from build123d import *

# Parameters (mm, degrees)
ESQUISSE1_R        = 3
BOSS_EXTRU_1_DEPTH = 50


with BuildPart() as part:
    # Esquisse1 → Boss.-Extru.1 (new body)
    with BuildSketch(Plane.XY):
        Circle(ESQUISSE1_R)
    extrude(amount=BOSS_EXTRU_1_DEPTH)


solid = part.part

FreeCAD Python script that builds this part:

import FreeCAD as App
import Part
import Sketcher
from FreeCAD import Vector
Q = App.Units.Quantity

doc = App.newDocument("Part")
body = doc.addObject("PartDesign::Body", "Body")

sketch1 = body.newObject("Sketcher::SketchObject", "Sketch")
sketch1.AttachmentSupport = (doc.getObject("XY_Plane"), [""])
sketch1.MapMode = "FlatFace"
sketch1.addGeometry(Part.Circle(Vector(0, 0, 0), Vector(0, 0, 1), 3), False)
sketch1.addConstraint(Sketcher.Constraint("Coincident", 0, 3, -1, 1))
sketch1.addConstraint(Sketcher.Constraint("Diameter", 0, Q("6 mm")))
pad1 = body.newObject("PartDesign::Pad", "Pad")
pad1.Profile = sketch1
pad1.Length = 50

doc.recompute()
